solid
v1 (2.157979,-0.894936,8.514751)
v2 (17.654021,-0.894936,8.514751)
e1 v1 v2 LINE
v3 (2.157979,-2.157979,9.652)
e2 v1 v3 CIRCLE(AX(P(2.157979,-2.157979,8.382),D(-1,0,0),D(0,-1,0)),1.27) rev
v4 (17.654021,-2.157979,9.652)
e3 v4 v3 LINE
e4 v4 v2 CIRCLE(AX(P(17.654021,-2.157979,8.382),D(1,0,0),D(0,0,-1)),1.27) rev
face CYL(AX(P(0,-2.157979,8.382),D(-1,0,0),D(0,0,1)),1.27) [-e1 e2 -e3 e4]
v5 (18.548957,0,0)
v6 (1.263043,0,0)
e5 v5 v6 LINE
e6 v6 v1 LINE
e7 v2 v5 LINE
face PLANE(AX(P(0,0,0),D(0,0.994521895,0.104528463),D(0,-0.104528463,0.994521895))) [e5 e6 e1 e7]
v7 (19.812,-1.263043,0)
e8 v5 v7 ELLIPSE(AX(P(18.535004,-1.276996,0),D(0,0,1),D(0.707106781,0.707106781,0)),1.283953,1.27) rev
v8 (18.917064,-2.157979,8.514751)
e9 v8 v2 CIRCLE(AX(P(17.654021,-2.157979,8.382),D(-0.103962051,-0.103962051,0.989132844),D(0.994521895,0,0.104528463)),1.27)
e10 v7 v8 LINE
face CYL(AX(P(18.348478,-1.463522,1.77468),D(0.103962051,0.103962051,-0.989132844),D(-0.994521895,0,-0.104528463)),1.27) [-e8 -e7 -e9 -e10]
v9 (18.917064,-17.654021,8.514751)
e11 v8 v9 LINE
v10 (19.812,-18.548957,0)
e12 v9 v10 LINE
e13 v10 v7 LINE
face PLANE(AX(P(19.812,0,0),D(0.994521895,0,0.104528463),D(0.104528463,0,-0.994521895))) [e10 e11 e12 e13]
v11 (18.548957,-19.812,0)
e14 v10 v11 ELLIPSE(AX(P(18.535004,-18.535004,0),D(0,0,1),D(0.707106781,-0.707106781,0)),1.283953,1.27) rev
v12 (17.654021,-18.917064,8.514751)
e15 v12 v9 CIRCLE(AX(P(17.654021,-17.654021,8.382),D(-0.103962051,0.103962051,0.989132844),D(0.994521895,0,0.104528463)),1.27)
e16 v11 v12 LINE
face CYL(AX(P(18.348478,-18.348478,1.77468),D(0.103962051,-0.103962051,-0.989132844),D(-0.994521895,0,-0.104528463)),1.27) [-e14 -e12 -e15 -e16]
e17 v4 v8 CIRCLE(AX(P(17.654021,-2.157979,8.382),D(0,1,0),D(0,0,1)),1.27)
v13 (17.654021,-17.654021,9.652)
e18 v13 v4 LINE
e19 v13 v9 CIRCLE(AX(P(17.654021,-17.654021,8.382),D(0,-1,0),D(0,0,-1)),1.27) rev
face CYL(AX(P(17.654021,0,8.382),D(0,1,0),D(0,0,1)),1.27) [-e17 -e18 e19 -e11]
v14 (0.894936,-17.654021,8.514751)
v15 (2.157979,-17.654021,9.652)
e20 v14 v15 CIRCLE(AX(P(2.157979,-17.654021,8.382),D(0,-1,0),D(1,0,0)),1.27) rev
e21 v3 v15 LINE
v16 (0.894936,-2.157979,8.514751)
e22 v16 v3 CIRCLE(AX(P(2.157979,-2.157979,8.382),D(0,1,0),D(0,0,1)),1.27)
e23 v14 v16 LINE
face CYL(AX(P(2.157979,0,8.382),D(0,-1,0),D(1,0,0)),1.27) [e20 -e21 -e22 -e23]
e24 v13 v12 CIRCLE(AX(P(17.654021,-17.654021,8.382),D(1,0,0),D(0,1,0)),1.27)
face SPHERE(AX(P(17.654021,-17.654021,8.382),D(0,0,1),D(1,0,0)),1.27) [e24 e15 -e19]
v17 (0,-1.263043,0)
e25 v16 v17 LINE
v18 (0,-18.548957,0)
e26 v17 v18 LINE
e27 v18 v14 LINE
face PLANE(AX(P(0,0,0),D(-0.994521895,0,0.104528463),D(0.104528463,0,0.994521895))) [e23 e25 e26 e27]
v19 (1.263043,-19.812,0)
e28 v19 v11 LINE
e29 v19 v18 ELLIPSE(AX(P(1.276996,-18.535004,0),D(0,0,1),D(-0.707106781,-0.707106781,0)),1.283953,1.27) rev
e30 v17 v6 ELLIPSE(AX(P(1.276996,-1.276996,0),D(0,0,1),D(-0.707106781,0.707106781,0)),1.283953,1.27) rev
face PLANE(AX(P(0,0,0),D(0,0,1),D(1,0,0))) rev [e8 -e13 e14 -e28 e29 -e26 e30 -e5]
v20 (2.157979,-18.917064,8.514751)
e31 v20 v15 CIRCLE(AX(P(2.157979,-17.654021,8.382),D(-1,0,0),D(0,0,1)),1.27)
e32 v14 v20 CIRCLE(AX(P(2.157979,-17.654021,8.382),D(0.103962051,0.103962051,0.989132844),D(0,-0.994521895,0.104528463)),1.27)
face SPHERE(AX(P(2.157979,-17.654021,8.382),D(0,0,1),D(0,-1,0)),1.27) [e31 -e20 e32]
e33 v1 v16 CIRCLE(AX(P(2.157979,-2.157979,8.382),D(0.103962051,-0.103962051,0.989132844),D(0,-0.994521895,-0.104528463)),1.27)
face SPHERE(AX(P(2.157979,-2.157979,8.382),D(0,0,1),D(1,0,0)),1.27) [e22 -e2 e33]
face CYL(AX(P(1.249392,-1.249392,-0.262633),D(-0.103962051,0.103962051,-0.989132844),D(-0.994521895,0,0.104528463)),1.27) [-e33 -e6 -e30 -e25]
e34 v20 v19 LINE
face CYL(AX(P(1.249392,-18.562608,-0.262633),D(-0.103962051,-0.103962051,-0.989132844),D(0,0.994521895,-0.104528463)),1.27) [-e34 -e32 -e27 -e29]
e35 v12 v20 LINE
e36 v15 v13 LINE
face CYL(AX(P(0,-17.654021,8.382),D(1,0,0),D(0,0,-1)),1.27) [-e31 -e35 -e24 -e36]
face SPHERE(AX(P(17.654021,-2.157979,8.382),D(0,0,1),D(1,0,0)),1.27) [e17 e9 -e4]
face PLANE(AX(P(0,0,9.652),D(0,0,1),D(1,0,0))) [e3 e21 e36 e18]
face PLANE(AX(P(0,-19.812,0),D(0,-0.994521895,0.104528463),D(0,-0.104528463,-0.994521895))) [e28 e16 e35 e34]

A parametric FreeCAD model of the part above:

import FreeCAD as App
import Part
import Sketcher
Q = App.Units.Quantity


def edges_at(feature, points):
    """Names of the edges that pass closest to the given points."""
    edges = feature.Shape.Edges
    near = lambda p: min(range(len(edges)), key=lambda i: edges[i].distToShape(Part.Vertex(*p))[0])
    return sorted({f"Edge{near(p) + 1}" for p in points})

doc = App.newDocument("Part")
body = doc.addObject("PartDesign::Body", "Body")

# Sketch on XY plane
sketch1 = doc.addObject("Sketcher::SketchObject", "Sketch")
body.addObject(sketch1)
sketch1.AttachmentSupport = (doc.XY_Plane, [""])
sketch1.MapMode = "FlatFace"
sketch1.addGeometry([
    Part.LineSegment(App.Vector(0, 0, 0), App.Vector(0, -20, 0)),
    Part.LineSegment(App.Vector(0, -20, 0), App.Vector(20, -20, 0)),
    Part.LineSegment(App.Vector(20, -20, 0), App.Vector(20, 0, 0)),
    Part.LineSegment(App.Vector(20, 0, 0), App.Vector(0, 0, 0)),
], False)
sketch1.addConstraint([
    Sketcher.Constraint("Coincident", 0, 2, 1, 1),
    Sketcher.Constraint("Coincident", 1, 2, 2, 1),
    Sketcher.Constraint("Coincident", 2, 2, 3, 1),
    Sketcher.Constraint("Coincident", 3, 2, 0, 1),
    Sketcher.Constraint("Vertical", 0),
    Sketcher.Constraint("Horizontal", 1),
    Sketcher.Constraint("Vertical", 2),
    Sketcher.Constraint("Horizontal", 3),
    Sketcher.Constraint("Coincident", 3, 2, -1, 1),
    Sketcher.Constraint("Equal", 3, 0),
    Sketcher.Constraint("DistanceX", 1, 1, 1, 2, Q("0.78 in")),
])
pad1 = doc.addObject("PartDesign::Pad", "Pad")
body.addObject(pad1)
pad1.Profile = sketch1
pad1.Length = Q("0.38 in")
pad1.TaperAngle = -6
doc.recompute()

fillet = doc.addObject("PartDesign::Fillet", "Fillet")
body.addObject(fillet)
fillet.Base = (pad1, edges_at(pad1, [
    (18.798, -9.906, 9.652),
    (9.906, -1.014, 9.652),
    (1.014, -9.906, 9.652),
    (0.507, -0.507, 4.826),
    (19.305, -0.507, 4.826),
    (19.305, -19.305, 4.826),
    (0.507, -19.305, 4.826),
    (9.906, -18.798, 9.652),
]))
fillet.Radius = Q("0.05 in")

doc.recompute()
